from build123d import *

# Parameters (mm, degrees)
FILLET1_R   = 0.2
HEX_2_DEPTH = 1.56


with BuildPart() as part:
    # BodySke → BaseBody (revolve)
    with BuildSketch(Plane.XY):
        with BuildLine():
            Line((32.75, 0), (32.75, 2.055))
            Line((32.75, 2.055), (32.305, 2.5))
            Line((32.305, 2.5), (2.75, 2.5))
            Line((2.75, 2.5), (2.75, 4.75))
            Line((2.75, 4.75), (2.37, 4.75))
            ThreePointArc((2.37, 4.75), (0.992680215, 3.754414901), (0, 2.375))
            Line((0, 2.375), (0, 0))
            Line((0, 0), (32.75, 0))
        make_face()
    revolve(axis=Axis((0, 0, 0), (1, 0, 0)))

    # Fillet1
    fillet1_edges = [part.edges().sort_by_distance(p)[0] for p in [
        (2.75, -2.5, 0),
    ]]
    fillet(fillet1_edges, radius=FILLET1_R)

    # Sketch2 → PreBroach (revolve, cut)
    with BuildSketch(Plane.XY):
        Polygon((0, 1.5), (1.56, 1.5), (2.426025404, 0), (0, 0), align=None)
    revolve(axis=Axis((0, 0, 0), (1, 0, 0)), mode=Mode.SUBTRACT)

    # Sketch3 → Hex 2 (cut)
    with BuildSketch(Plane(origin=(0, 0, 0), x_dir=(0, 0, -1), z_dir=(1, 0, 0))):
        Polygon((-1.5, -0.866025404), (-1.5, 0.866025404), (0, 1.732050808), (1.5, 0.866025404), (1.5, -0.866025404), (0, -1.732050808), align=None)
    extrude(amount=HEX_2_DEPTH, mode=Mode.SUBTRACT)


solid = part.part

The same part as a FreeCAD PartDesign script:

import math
import FreeCAD as App
import Part
import Sketcher
from FreeCAD import Vector
Q = App.Units.Quantity


def edges_at(feature, points):
    """Names of the edges that pass closest to the given points."""
    edges = feature.Shape.Edges
    near = lambda p: min(range(len(edges)), key=lambda i: edges[i].distToShape(Part.Vertex(*p))[0])
    return sorted({f"Edge{near(p) + 1}" for p in points})

doc = App.newDocument("Part")
body = doc.addObject("PartDesign::Body", "Body")

sketch1 = body.newObject("Sketcher::SketchObject", "Sketch")
sketch1.AttachmentSupport = (doc.getObject("XY_Plane"), [""])
sketch1.MapMode = "FlatFace"
sketch1.addGeometry(Part.LineSegment(Vector(32.75, 0, 0), Vector(32.75, 2.055, 0)), False)
sketch1.addGeometry(Part.LineSegment(Vector(32.75, 2.055, 0), Vector(32.305, 2.5, 0)), False)
sketch1.addGeometry(Part.LineSegment(Vector(32.305, 2.5, 0), Vector(2.75, 2.5, 0)), False)
sketch1.addGeometry(Part.LineSegment(Vector(2.75, 2.5, 0), Vector(2.75, 4.75, 0)), False)
sketch1.addGeometry(Part.LineSegment(Vector(2.75, 4.75, 0), Vector(2.37, 4.75, 0)), False)
sketch1.addGeometry(Part.ArcOfCircle(Part.Circle(Vector(4.755016, 0, 0), Vector(0, 0, 1), 5.315148), math.radians(116.66162), math.radians(153.459129)), False)
sketch1.addGeometry(Part.LineSegment(Vector(0, 2.375, 0), Vector(0, 0, 0)), False)
sketch1.addGeometry(Part.LineSegment(Vector(0, 0, 0), Vector(32.75, 0, 0)), False)
sketch1.addConstraint(Sketcher.Constraint("Coincident", 0, 2, 1, 1))
sketch1.addConstraint(Sketcher.Constraint("Coincident", 1, 2, 2, 1))
sketch1.addConstraint(Sketcher.Constraint("Coincident", 2, 2, 3, 1))
sketch1.addConstraint(Sketcher.Constraint("Coincident", 3, 2, 4, 1))
sketch1.addConstraint(Sketcher.Constraint("Coincident", 4, 2, 5, 1))
sketch1.addConstraint(Sketcher.Constraint("Coincident", 5, 2, 6, 1))
sketch1.addConstraint(Sketcher.Constraint("Coincident", 6, 2, 7, 1))
sketch1.addConstraint(Sketcher.Constraint("Coincident", 7, 2, 0, 1))
sketch1.addConstraint(Sketcher.Constraint("Vertical", 0))
sketch1.addConstraint(Sketcher.Constraint("Horizontal", 2))
sketch1.addConstraint(Sketcher.Constraint("Vertical", 3))
sketch1.addConstraint(Sketcher.Constraint("Horizontal", 4))
sketch1.addConstraint(Sketcher.Constraint("Vertical", 6))
sketch1.addConstraint(Sketcher.Constraint("Horizontal", 7))
sketch1.addConstraint(Sketcher.Constraint("Coincident", 6, 2, -1, 1))
sketch1.addConstraint(Sketcher.Constraint("PointOnObject", 5, 3, -1))
sketch1.addConstraint(Sketcher.Constraint("Angle", 1, Q("135 deg")))
sketch1.addConstraint(Sketcher.Constraint("DistanceX", 2, 2, 0, 2, Q("30 mm")))
sketch1.addConstraint(Sketcher.Constraint("DistanceX", 4, 2, 4, 1, Q("0.38 mm")))
sketch1.addConstraint(Sketcher.Constraint("DistanceX", 7, 1, 7, 2, Q("32.75 mm")))
sketch1.addConstraint(Sketcher.Constraint("DistanceY", 3, 1, 3, 2, Q("2.25 mm")))
sketch1.addConstraint(Sketcher.Constraint("DistanceY", -1, 1, 1, 2, Q("2.5 mm")))
sketch1.addConstraint(Sketcher.Constraint("DistanceX", 2, 2, 2, 1, Q("29.555 mm")))
sketch1.addConstraint(Sketcher.Constraint("DistanceY", 6, 2, 6, 1, Q("2.375 mm")))
revolution = body.newObject("PartDesign::Revolution", "Revolution")
revolution.Profile = sketch1
revolution.ReferenceAxis = (sketch1, ["H_Axis"])
revolution.Angle = 360
doc.recompute()

fillet = body.newObject("PartDesign::Fillet", "Fillet")
fillet.Base = (revolution, edges_at(revolution, [(2.75, -2.5, 0)]))
fillet.Radius = 0.2

sketch2 = body.newObject("Sketcher::SketchObject", "Sketch001")
sketch2.AttachmentSupport = (doc.getObject("XY_Plane"), [""])
sketch2.MapMode = "FlatFace"
sketch2.addGeometry(Part.LineSegment(Vector(1.56, 1.5, 0), Vector(0, 1.5, 0)), False)
sketch2.addGeometry(Part.LineSegment(Vector(0, 1.5, 0), Vector(0, 0, 0)), False)
sketch2.addGeometry(Part.LineSegment(Vector(0, 0, 0), Vector(2.426025, 0, 0)), False)
sketch2.addGeometry(Part.LineSegment(Vector(2.426025, 0, 0), Vector(1.56, 1.5, 0)), False)
sketch2.addConstraint(Sketcher.Constraint("Coincident", 0, 2, 1, 1))
sketch2.addConstraint(Sketcher.Constraint("Coincident", 1, 2, 2, 1))
sketch2.addConstraint(Sketcher.Constraint("Coincident", 2, 2, 3, 1))
sketch2.addConstraint(Sketcher.Constraint("Coincident", 3, 2, 0, 1))
sketch2.addConstraint(Sketcher.Constraint("Horizontal", 0))
sketch2.addConstraint(Sketcher.Constraint("Vertical", 1))
sketch2.addConstraint(Sketcher.Constraint("Horizontal", 2))
sketch2.addConstraint(Sketcher.Constraint("Coincident", 1, 2, -1, 1))
sketch2.addConstraint(Sketcher.Constraint("Angle", 3, Q("120 deg")))
sketch2.addConstraint(Sketcher.Constraint("DistanceY", 1, 2, 1, 1, Q("1.5 mm")))
sketch2.addConstraint(Sketcher.Constraint("DistanceX", 0, 2, 0, 1, Q("1.56 mm")))
groove = body.newObject("PartDesign::Groove", "Groove")
groove.Profile = sketch2
groove.ReferenceAxis = (sketch2, ["H_Axis"])
groove.Angle = 360

sketch3 = body.newObject("Sketcher::SketchObject", "Sketch002")
sketch3.AttachmentSupport = (doc.getObject("YZ_Plane"), [""])
sketch3.MapMode = "FlatFace"
sketch3.addGeometry(Part.LineSegment(Vector(0.866025, 1.5, 0), Vector(-0.866025, 1.5, 0)), False)
sketch3.addGeometry(Part.LineSegment(Vector(-0.866025, 1.5, 0), Vector(-1.732051, 0, 0)), False)
sketch3.addGeometry(Part.LineSegment(Vector(-1.732051, 0, 0), Vector(-0.866025, -1.5, 0)), False)
sketch3.addGeometry(Part.LineSegment(Vector(-0.866025, -1.5, 0), Vector(0.866025, -1.5, 0)), False)
sketch3.addGeometry(Part.LineSegment(Vector(0.866025, -1.5, 0), Vector(1.732051, 0, 0)), False)
sketch3.addGeometry(Part.LineSegment(Vector(1.732051, 0, 0), Vector(0.866025, 1.5, 0)), False)
sketch3.addConstraint(Sketcher.Constraint("Coincident", 0, 2, 1, 1))
sketch3.addConstraint(Sketcher.Constraint("Coincident", 1, 2, 2, 1))
sketch3.addConstraint(Sketcher.Constraint("Coincident", 2, 2, 3, 1))
sketch3.addConstraint(Sketcher.Constraint("Coincident", 3, 2, 4, 1))
sketch3.addConstraint(Sketcher.Constraint("Coincident", 4, 2, 5, 1))
sketch3.addConstraint(Sketcher.Constraint("Coincident", 5, 2, 0, 1))
sketch3.addConstraint(Sketcher.Constraint("Horizontal", 0))
sketch3.addConstraint(Sketcher.Constraint("Horizontal", 3))
sketch3.addConstraint(Sketcher.Constraint("Symmetric", 0, 2, 3, 2, -1, 1))
sketch3.addConstraint(Sketcher.Constraint("Symmetric", 1, 2, 4, 2, -1, 1))
sketch3.addConstraint(Sketcher.Constraint("PointOnObject", 1, 2, -1))
sketch3.addConstraint(Sketcher.Constraint("Parallel", 2, 5))
sketch3.addConstraint(Sketcher.Constraint("Vertical", 0, 2, 2, 2))
sketch3.addConstraint(Sketcher.Constraint("Angle", 1, Q("-120 deg")))
sketch3.addConstraint(Sketcher.Constraint("DistanceY", 2, 2, 0, 2, Q("3 mm")))
sketch3.addConstraint(Sketcher.Constraint("DistanceX", 0, 2, 0, 1, Q("1.732051 mm")))
pocket1 = body.newObject("PartDesign::Pocket", "Pocket")
pocket1.Profile = sketch3
pocket1.Length = 1.56
pocket1.Reversed = True

doc.recompute()
